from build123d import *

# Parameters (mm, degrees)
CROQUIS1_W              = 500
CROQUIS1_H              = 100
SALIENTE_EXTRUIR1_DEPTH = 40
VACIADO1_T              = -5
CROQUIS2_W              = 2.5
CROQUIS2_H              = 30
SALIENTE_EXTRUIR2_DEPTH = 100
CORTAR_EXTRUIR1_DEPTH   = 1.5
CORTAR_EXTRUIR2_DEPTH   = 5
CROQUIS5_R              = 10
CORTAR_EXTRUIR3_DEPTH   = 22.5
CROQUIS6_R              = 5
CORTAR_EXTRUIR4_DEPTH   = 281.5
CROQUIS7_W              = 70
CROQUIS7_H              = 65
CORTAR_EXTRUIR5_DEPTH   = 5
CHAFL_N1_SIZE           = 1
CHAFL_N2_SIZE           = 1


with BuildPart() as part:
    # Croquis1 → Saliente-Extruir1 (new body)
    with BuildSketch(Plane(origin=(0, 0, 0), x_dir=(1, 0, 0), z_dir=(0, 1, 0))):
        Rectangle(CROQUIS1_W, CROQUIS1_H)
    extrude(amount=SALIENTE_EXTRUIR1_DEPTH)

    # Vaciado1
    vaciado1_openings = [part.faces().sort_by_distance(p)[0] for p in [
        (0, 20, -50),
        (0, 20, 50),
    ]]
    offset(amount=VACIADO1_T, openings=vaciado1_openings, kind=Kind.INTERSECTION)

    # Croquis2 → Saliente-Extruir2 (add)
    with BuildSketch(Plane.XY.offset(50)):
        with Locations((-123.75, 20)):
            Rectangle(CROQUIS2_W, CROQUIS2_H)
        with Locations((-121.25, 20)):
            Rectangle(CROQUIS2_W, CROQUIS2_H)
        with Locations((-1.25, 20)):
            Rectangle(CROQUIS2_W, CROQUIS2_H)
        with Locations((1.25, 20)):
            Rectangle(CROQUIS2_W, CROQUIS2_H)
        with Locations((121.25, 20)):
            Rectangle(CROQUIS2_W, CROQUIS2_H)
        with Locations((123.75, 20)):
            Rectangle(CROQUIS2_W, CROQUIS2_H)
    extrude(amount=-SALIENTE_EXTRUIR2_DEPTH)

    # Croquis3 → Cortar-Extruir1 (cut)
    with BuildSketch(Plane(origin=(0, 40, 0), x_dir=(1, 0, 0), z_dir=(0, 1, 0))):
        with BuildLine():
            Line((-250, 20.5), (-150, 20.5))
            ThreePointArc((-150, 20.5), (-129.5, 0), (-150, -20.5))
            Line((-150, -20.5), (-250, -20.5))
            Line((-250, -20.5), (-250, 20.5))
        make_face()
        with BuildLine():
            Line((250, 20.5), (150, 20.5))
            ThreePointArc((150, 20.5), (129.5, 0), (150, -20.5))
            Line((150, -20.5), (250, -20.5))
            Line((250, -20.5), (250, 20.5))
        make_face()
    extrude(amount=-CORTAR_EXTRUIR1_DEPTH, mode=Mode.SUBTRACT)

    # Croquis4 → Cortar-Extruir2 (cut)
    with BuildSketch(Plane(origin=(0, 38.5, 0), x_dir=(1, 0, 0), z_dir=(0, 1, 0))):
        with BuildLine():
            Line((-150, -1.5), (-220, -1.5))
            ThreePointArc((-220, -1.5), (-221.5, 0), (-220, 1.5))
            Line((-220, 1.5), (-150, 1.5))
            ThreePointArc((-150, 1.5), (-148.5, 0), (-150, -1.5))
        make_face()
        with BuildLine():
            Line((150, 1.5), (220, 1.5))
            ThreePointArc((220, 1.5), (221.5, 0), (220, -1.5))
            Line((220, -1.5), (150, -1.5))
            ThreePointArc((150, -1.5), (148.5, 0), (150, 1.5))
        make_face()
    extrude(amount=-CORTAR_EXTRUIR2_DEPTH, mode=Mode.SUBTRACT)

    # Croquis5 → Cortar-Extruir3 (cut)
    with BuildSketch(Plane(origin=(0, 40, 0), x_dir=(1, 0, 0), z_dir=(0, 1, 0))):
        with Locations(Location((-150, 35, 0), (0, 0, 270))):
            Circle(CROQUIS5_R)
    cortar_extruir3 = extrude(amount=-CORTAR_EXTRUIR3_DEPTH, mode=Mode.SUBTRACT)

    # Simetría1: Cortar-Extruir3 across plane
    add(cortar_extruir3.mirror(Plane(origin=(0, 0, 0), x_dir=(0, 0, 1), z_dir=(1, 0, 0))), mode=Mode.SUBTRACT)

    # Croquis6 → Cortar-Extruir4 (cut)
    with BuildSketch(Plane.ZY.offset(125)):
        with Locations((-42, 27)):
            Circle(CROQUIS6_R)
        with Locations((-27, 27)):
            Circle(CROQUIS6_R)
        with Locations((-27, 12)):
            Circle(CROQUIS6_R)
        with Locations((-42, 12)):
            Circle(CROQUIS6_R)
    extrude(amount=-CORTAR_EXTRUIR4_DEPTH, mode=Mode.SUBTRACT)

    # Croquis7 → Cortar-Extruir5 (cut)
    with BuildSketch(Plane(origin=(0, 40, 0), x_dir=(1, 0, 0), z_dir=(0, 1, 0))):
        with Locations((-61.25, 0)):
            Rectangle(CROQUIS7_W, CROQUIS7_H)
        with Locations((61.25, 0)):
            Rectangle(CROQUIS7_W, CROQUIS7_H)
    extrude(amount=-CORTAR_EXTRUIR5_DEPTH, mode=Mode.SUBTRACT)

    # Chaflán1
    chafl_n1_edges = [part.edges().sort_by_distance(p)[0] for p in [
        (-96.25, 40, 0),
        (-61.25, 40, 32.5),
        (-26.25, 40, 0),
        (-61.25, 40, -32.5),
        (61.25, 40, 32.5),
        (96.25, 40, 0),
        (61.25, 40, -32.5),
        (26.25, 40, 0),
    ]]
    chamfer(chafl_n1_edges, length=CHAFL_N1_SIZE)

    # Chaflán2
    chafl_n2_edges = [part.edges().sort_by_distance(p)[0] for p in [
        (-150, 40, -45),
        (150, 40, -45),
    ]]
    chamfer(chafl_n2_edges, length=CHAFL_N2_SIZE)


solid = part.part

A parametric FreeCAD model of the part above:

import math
import FreeCAD as App
import Part
import Sketcher


def edges_at(feature, points):
    """Names of the edges that pass closest to the given points."""
    edges = feature.Shape.Edges
    near = lambda p: min(range(len(edges)), key=lambda i: edges[i].distToShape(Part.Vertex(*p))[0])
    return sorted({f"Edge{near(p) + 1}" for p in points})


def faces_at(feature, points):
    """Names of the faces that lie closest to the given points."""
    faces = feature.Shape.Faces
    near = lambda p: min(range(len(faces)), key=lambda i: faces[i].distToShape(Part.Vertex(*p))[0])
    return sorted({f"Face{near(p) + 1}" for p in points})


def add_polygon(sketch, points):
    """Adds a closed chain of lines whose ends are joined by coincident constraints."""
    first, n = sketch.GeometryCount, len(points)
    for a, b in zip(points, points[1:] + points[:1]):
        sketch.addGeometry(Part.LineSegment(App.Vector(*a, 0), App.Vector(*b, 0)), False)
    for i in range(n):
        sketch.addConstraint(Sketcher.Constraint("Coincident", first + i, 2, first + (i + 1) % n, 1))

doc = App.newDocument("Part")
body = doc.addObject("PartDesign::Body", "Body")

sketch1 = body.newObject("Sketcher::SketchObject", "Sketch")
sketch1.AttachmentSupport = (doc.getObject("XZ_Plane"), [""])
sketch1.MapMode = "FlatFace"
add_polygon(sketch1, [(-250, -50), (-250, 50), (250, 50), (250, -50)])
sketch1.addConstraint(Sketcher.Constraint("Vertical", 0))
sketch1.addConstraint(Sketcher.Constraint("Horizontal", 1))
sketch1.addConstraint(Sketcher.Constraint("Vertical", 2))
sketch1.addConstraint(Sketcher.Constraint("Horizontal", 3))
sketch1.addConstraint(Sketcher.Constraint("Symmetric", 0, 2, 2, 2, -1, 1))
sketch1.addConstraint(Sketcher.Constraint("DistanceX", 1, 1, 1, 2, 500.0))
sketch1.addConstraint(Sketcher.Constraint("DistanceY", 0, 1, 0, 2, 100.0))
pad1 = body.newObject("PartDesign::Pad", "Pad")
pad1.Profile = sketch1
pad1.Length = 40
pad1.Reversed = True
doc.recompute()

thickness = body.newObject("PartDesign::Thickness", "Thickness")
thickness.Base = (pad1, faces_at(pad1, [(0, 20, -50), (0, 20, 50)]))
thickness.Value = 5
thickness.Reversed = True
thickness.Join = "Intersection"

sketch2 = body.newObject("Sketcher::SketchObject", "Sketch001")
sketch2.AttachmentSupport = (doc.getObject("XY_Plane"), [""])
sketch2.MapMode = "FlatFace"
sketch2.AttachmentOffset = App.Placement(App.Vector(0, 0, 50), App.Rotation())
add_polygon(sketch2, [(-125, 35), (-125, 5), (-120, 5), (-120, 35)])
add_polygon(sketch2, [(-2.5, 35), (-2.5, 5), (2.5, 5), (2.5, 35)])
add_polygon(sketch2, [(120, 35), (120, 5), (125, 5), (125, 35)])
sketch2.addConstraint(Sketcher.Constraint("Vertical", 0))
sketch2.addConstraint(Sketcher.Constraint("Horizontal", 1))
sketch2.addConstraint(Sketcher.Constraint("Vertical", 2))
sketch2.addConstraint(Sketcher.Constraint("Horizontal", 3))
sketch2.addConstraint(Sketcher.Constraint("Vertical", 4))
sketch2.addConstraint(Sketcher.Constraint("Horizontal", 5))
sketch2.addConstraint(Sketcher.Constraint("Vertical", 6))
sketch2.addConstraint(Sketcher.Constraint("Horizontal", 7))
sketch2.addConstraint(Sketcher.Constraint("Vertical", 8))
sketch2.addConstraint(Sketcher.Constraint("Horizontal", 9))
sketch2.addConstraint(Sketcher.Constraint("Vertical", 10))
sketch2.addConstraint(Sketcher.Constraint("Horizontal", 11))
sketch2.addConstraint(Sketcher.Constraint("Symmetric", 1, 2, 8, 2, -2))
sketch2.addConstraint(Sketcher.Constraint("Symmetric", 3, 2, 10, 2, -2))
sketch2.addConstraint(Sketcher.Constraint("Horizontal", 1, 2, 4, 2))
sketch2.addConstraint(Sketcher.Constraint("Horizontal", 3, 2, 6, 2))
sketch2.addConstraint(Sketcher.Constraint("Equal", 3, 5))
sketch2.addConstraint(Sketcher.Constraint("DistanceX", 1, 1, 1, 2, 5.0))
sketch2.addConstraint(Sketcher.Constraint("DistanceY", 0, 2, 0, 1, 30.0))
sketch2.addConstraint(Sketcher.Constraint("DistanceX", 0, 2, -1, 1, 125.0))
sketch2.addConstraint(Sketcher.Constraint("DistanceY", -1, 1, 0, 2, 5.0))
sketch2.addConstraint(Sketcher.Constraint("DistanceX", 4, 2, -1, 1, 2.5))
pad2 = body.newObject("PartDesign::Pad", "Pad001")
pad2.Profile = sketch2
pad2.Length = 100
pad2.Reversed = True

sketch3 = body.newObject("Sketcher::SketchObject", "Sketch002")
sketch3.AttachmentSupport = (doc.getObject("XZ_Plane"), [""])
sketch3.MapMode = "FlatFace"
sketch3.AttachmentOffset = App.Placement(App.Vector(0, 0, -40), App.Rotation())
sketch3.addGeometry(Part.LineSegment(App.Vector(-150, -20.5, 0), App.Vector(-250, -20.5, 0)), False)
sketch3.addGeometry(Part.LineSegment(App.Vector(-250, -20.5, 0), App.Vector(-250, 20.5, 0)), False)
sketch3.addGeometry(Part.LineSegment(App.Vector(-250, 20.5, 0), App.Vector(-150, 20.5, 0)), False)
sketch3.addGeometry(Part.ArcOfCircle(Part.Circle(App.Vector(-150, 0, 0), App.Vector(0, 0, 1), 20.5), math.radians(-90), math.radians(90)), False)
sketch3.addGeometry(Part.LineSegment(App.Vector(250, -20.5, 0), App.Vector(150, -20.5, 0)), False)
sketch3.addGeometry(Part.ArcOfCircle(Part.Circle(App.Vector(150, 0, 0), App.Vector(0, 0, 1), 20.5), math.radians(90), math.radians(270)), False)
sketch3.addGeometry(Part.LineSegment(App.Vector(150, 20.5, 0), App.Vector(250, 20.5, 0)), False)
sketch3.addGeometry(Part.LineSegment(App.Vector(250, 20.5, 0), App.Vector(250, -20.5, 0)), False)
sketch3.addConstraint(Sketcher.Constraint("Coincident", 0, 2, 1, 1))
sketch3.addConstraint(Sketcher.Constraint("Coincident", 1, 2, 2, 1))
sketch3.addConstraint(Sketcher.Constraint("Tangent", 2, 2, 3, 2))
sketch3.addConstraint(Sketcher.Constraint("Tangent", 3, 1, 0, 1))
sketch3.addConstraint(Sketcher.Constraint("Tangent", 4, 2, 5, 2))
sketch3.addConstraint(Sketcher.Constraint("Tangent", 5, 1, 6, 1))
sketch3.addConstraint(Sketcher.Constraint("Coincident", 6, 2, 7, 1))
sketch3.addConstraint(Sketcher.Constraint("Coincident", 7, 2, 4, 1))
sketch3.addConstraint(Sketcher.Constraint("Horizontal", 0))
sketch3.addConstraint(Sketcher.Constraint("Vertical", 1))
sketch3.addConstraint(Sketcher.Constraint("Horizontal", 2))
sketch3.addConstraint(Sketcher.Constraint("Horizontal", 4))
sketch3.addConstraint(Sketcher.Constraint("Horizontal", 6))
sketch3.addConstraint(Sketcher.Constraint("Vertical", 7))
sketch3.addConstraint(Sketcher.Constraint("Equal", 3, 5))
sketch3.addConstraint(Sketcher.Constraint("Symmetric", 3, 3, 5, 3, -1, 1))
sketch3.addConstraint(Sketcher.Constraint("Symmetric", 1, 2, 6, 2, -2))
sketch3.addConstraint(Sketcher.Constraint("Radius", 3, 20.5))
sketch3.addConstraint(Sketcher.Constraint("DistanceX", 0, 2, 0, 1, 100.0))
sketch3.addConstraint(Sketcher.Constraint("DistanceX", 3, 3, -1, 1, 150.0))
pocket1 = body.newObject("PartDesign::Pocket", "Pocket")
pocket1.Profile = sketch3
pocket1.Length = 1.5
pocket1.Reversed = True

sketch4 = body.newObject("Sketcher::SketchObject", "Sketch003")
sketch4.AttachmentSupport = (doc.getObject("XZ_Plane"), [""])
sketch4.MapMode = "FlatFace"
sketch4.AttachmentOffset = App.Placement(App.Vector(0, 0, -38.5), App.Rotation())
sketch4.addGeometry(Part.LineSegment(App.Vector(-220, 1.5, 0), App.Vector(-150, 1.5, 0)), False)
sketch4.addGeometry(Part.ArcOfCircle(Part.Circle(App.Vector(-150, 0, 0), App.Vector(0, 0, 1), 1.5), math.radians(-90), math.radians(90)), False)
sketch4.addGeometry(Part.LineSegment(App.Vector(-150, -1.5, 0), App.Vector(-220, -1.5, 0)), False)
sketch4.addGeometry(Part.ArcOfCircle(Part.Circle(App.Vector(-220, 0, 0), App.Vector(0, 0, 1), 1.5), math.radians(90), math.radians(270)), False)
sketch4.addGeometry(Part.LineSegment(App.Vector(220, -1.5, 0), App.Vector(150, -1.5, 0)), False)
sketch4.addGeometry(Part.ArcOfCircle(Part.Circle(App.Vector(150, 0, 0), App.Vector(0, 0, 1), 1.5), math.radians(90), math.radians(270)), False)
sketch4.addGeometry(Part.LineSegment(App.Vector(150, 1.5, 0), App.Vector(220, 1.5, 0)), False)
sketch4.addGeometry(Part.ArcOfCircle(Part.Circle(App.Vector(220, 0, 0), App.Vector(0, 0, 1), 1.5), math.radians(-90), math.radians(90)), False)
sketch4.addConstraint(Sketcher.Constraint("Tangent", 0, 2, 1, 2))
sketch4.addConstraint(Sketcher.Constraint("Tangent", 1, 1, 2, 1))
sketch4.addConstraint(Sketcher.Constraint("Tangent", 2, 2, 3, 2))
sketch4.addConstraint(Sketcher.Constraint("Tangent", 3, 1, 0, 1))
sketch4.addConstraint(Sketcher.Constraint("Tangent", 4, 2, 5, 2))
sketch4.addConstraint(Sketcher.Constraint("Tangent", 5, 1, 6, 1))
sketch4.addConstraint(Sketcher.Constraint("Tangent", 6, 2, 7, 2))
sketch4.addConstraint(Sketcher.Constraint("Tangent", 7, 1, 4, 1))
sketch4.addConstraint(Sketcher.Constraint("Horizontal", 0))
sketch4.addConstraint(Sketcher.Constraint("Horizontal", 2))
sketch4.addConstraint(Sketcher.Constraint("Horizontal", 4))
sketch4.addConstraint(Sketcher.Constraint("Horizontal", 6))
sketch4.addConstraint(Sketcher.Constraint("Equal", 3, 5))
sketch4.addConstraint(Sketcher.Constraint("Symmetric", 1, 3, 5, 3, -1, 1))
sketch4.addConstraint(Sketcher.Constraint("Symmetric", 3, 3, 7, 3, -2))
sketch4.addConstraint(Sketcher.Constraint("Radius", 1, 1.5))
sketch4.addConstraint(Sketcher.Constraint("DistanceX", 0, 1, 0, 2, 70.0))
sketch4.addConstraint(Sketcher.Constraint("DistanceX", 1, 3, -1, 1, 150.0))
pocket2 = body.newObject("PartDesign::Pocket", "Pocket001")
pocket2.Profile = sketch4
pocket2.Length = 5
pocket2.Reversed = True

sketch5 = body.newObject("Sketcher::SketchObject", "Sketch004")
sketch5.AttachmentSupport = (doc.getObject("XZ_Plane"), [""])
sketch5.MapMode = "FlatFace"
sketch5.AttachmentOffset = App.Placement(App.Vector(0, 0, -40), App.Rotation())
sketch5.addGeometry(Part.Circle(App.Vector(-150, -35, 0), App.Vector(0, 0, 1), 10), False)
sketch5.addConstraint(Sketcher.Constraint("Diameter", 0, 20.0))
sketch5.addConstraint(Sketcher.Constraint("DistanceX", 0, 3, -1, 1, 150.0))
sketch5.addConstraint(Sketcher.Constraint("DistanceY", 0, 3, -1, 1, 35.0))
pocket3 = body.newObject("PartDesign::Pocket", "Pocket002")
pocket3.Profile = sketch5
pocket3.Length = 22.5
pocket3.Reversed = True
doc.recompute()

mirrored = body.newObject("PartDesign::Mirrored", "Mirrored")
mirrored.Originals = [pocket3]
mirrored.MirrorPlane = (doc.getObject("YZ_Plane"), [""])
body.Tip = mirrored

sketch6 = body.newObject("Sketcher::SketchObject", "Sketch005")
sketch6.AttachmentSupport = (doc.getObject("YZ_Plane"), [""])
sketch6.MapMode = "FlatFace"
sketch6.AttachmentOffset = App.Placement(App.Vector(0, 0, -125), App.Rotation())
sketch6.addGeometry(Part.Circle(App.Vector(27, -42, 0), App.Vector(0, 0, 1), 5), False)
sketch6.addGeometry(Part.Circle(App.Vector(27, -27, 0), App.Vector(0, 0, 1), 5), False)
sketch6.addGeometry(Part.Circle(App.Vector(12, -27, 0), App.Vector(0, 0, 1), 5), False)
sketch6.addGeometry(Part.Circle(App.Vector(12, -42, 0), App.Vector(0, 0, 1), 5), False)
sketch6.addConstraint(Sketcher.Constraint("Equal", 0, 1))
sketch6.addConstraint(Sketcher.Constraint("Equal", 1, 2))
sketch6.addConstraint(Sketcher.Constraint("Equal", 2, 3))
sketch6.addConstraint(Sketcher.Constraint("Horizontal", 1, 3, 2, 3))
sketch6.addConstraint(Sketcher.Constraint("Horizontal", 0, 3, 3, 3))
sketch6.addConstraint(Sketcher.Constraint("Vertical", 0, 3, 1, 3))
sketch6.addConstraint(Sketcher.Constraint("Vertical", 2, 3, 3, 3))
sketch6.addConstraint(Sketcher.Constraint("Diameter", 0, 10.0))
sketch6.addConstraint(Sketcher.Constraint("DistanceX", -1, 1, 0, 3, 27.0))
sketch6.addConstraint(Sketcher.Constraint("DistanceY", 0, 3, -1, 1, 42.0))
sketch6.addConstraint(Sketcher.Constraint("DistanceY", 1, 3, -1, 1, 27.0))
sketch6.addConstraint(Sketcher.Constraint("DistanceX", -1, 1, 2, 3, 12.0))
pocket4 = body.newObject("PartDesign::Pocket", "Pocket003")
pocket4.Profile = sketch6
pocket4.Length = 281.5
pocket4.Reversed = True

sketch7 = body.newObject("Sketcher::SketchObject", "Sketch006")
sketch7.AttachmentSupport = (doc.getObject("XZ_Plane"), [""])
sketch7.MapMode = "FlatFace"
sketch7.AttachmentOffset = App.Placement(App.Vector(0, 0, -40), App.Rotation())
add_polygon(sketch7, [(-96.25, -32.5), (-96.25, 32.5), (-26.25, 32.5), (-26.25, -32.5)])
add_polygon(sketch7, [(26.25, -32.5), (26.25, 32.5), (96.25, 32.5), (96.25, -32.5)])
sketch7.addConstraint(Sketcher.Constraint("Vertical", 0))
sketch7.addConstraint(Sketcher.Constraint("Horizontal", 1))
sketch7.addConstraint(Sketcher.Constraint("Vertical", 2))
sketch7.addConstraint(Sketcher.Constraint("Horizontal", 3))
sketch7.addConstraint(Sketcher.Constraint("Vertical", 4))
sketch7.addConstraint(Sketcher.Constraint("Horizontal", 5))
sketch7.addConstraint(Sketcher.Constraint("Vertical", 6))
sketch7.addConstraint(Sketcher.Constraint("Horizontal", 7))
sketch7.addConstraint(Sketcher.Constraint("Symmetric", 2, 2, 4, 2, -1, 1))
sketch7.addConstraint(Sketcher.Constraint("Symmetric", 0, 2, 6, 2, -1, 1))
sketch7.addConstraint(Sketcher.Constraint("Horizontal", 1, 2, 4, 2))
sketch7.addConstraint(Sketcher.Constraint("DistanceX", 1, 1, 1, 2, 70.0))
sketch7.addConstraint(Sketcher.Constraint("DistanceY", 0, 1, 0, 2, 65.0))
sketch7.addConstraint(Sketcher.Constraint("DistanceX", 1, 2, 4, 2, 52.5))
pocket5 = body.newObject("PartDesign::Pocket", "Pocket004")
pocket5.Profile = sketch7
pocket5.Length = 5
pocket5.Reversed = True
doc.recompute()

chamfer = body.newObject("PartDesign::Chamfer", "Chamfer")
chamfer.Base = (pocket5, edges_at(pocket5, [
    (-96.25, 40, 0),
    (-61.25, 40, 32.5),
    (-26.25, 40, 0),
    (-61.25, 40, -32.5),
    (61.25, 40, 32.5),
    (96.25, 40, 0),
    (61.25, 40, -32.5),
    (26.25, 40, 0),
]))
chamfer.Size = 1
doc.recompute()

chamfer2 = body.newObject("PartDesign::Chamfer", "Chamfer001")
chamfer2.Base = (chamfer, edges_at(chamfer, [(-150, 40, -45), (150, 40, -45)]))
chamfer2.Size = 1

doc.recompute()
